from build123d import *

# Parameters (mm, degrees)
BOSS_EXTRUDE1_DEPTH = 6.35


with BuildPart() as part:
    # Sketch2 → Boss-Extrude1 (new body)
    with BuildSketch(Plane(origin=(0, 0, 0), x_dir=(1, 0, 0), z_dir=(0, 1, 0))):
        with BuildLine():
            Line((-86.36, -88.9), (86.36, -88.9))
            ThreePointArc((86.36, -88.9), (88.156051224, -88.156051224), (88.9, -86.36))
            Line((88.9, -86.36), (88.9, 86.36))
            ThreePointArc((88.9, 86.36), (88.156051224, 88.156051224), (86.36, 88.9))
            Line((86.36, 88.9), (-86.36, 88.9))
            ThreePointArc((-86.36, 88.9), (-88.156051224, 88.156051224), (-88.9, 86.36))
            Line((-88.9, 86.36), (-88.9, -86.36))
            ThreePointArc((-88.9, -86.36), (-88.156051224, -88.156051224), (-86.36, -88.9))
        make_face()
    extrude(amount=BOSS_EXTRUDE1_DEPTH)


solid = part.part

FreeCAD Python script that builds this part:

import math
import FreeCAD as App
import Part
import Sketcher
from FreeCAD import Vector
Q = App.Units.Quantity

doc = App.newDocument("Part")
params = doc.addObject("Spreadsheet::Sheet", "Params")
for row, (alias, value) in enumerate([
    ("sketch1_radius", "0.1 in"),
    ("sketch1_width", "6.8 in"),
    ("pad1_length", "0.25 in"),
], start=1):
    params.set(f"A{row}", alias)
    params.set(f"B{row}", "=" + value)
    params.setAlias(f"B{row}", alias)

body = doc.addObject("PartDesign::Body", "Body")

sketch1 = body.newObject("Sketcher::SketchObject", "Sketch")
sketch1.AttachmentSupport = (doc.getObject("XZ_Plane"), [""])
sketch1.MapMode = "FlatFace"
sketch1.addGeometry(Part.LineSegment(Vector(-86.4, 88.9, 0), Vector(86.4, 88.9, 0)), False)
sketch1.addGeometry(Part.ArcOfCircle(Part.Circle(Vector(86.4, 86.4, 0), Vector(0, 0, 1), 2.5), math.radians(0), math.radians(90)), False)
sketch1.addGeometry(Part.LineSegment(Vector(88.9, 86.4, 0), Vector(88.9, -86.4, 0)), False)
sketch1.addGeometry(Part.ArcOfCircle(Part.Circle(Vector(86.4, -86.4, 0), Vector(0, 0, 1), 2.5), math.radians(-90), math.radians(0)), False)
sketch1.addGeometry(Part.LineSegment(Vector(86.4, -88.9, 0), Vector(-86.4, -88.9, 0)), False)
sketch1.addGeometry(Part.ArcOfCircle(Part.Circle(Vector(-86.4, -86.4, 0), Vector(0, 0, 1), 2.5), math.radians(-180), math.radians(-90)), False)
sketch1.addGeometry(Part.LineSegment(Vector(-88.9, -86.4, 0), Vector(-88.9, 86.4, 0)), False)
sketch1.addGeometry(Part.ArcOfCircle(Part.Circle(Vector(-86.4, 86.4, 0), Vector(0, 0, 1), 2.5), math.radians(90), math.radians(180)), False)
sketch1.addConstraint(Sketcher.Constraint("Tangent", 0, 2, 1, 2))
sketch1.addConstraint(Sketcher.Constraint("Tangent", 1, 1, 2, 1))
sketch1.addConstraint(Sketcher.Constraint("Tangent", 2, 2, 3, 2))
sketch1.addConstraint(Sketcher.Constraint("Tangent", 3, 1, 4, 1))
sketch1.addConstraint(Sketcher.Constraint("Tangent", 4, 2, 5, 2))
sketch1.addConstraint(Sketcher.Constraint("Tangent", 5, 1, 6, 1))
sketch1.addConstraint(Sketcher.Constraint("Tangent", 6, 2, 7, 2))
sketch1.addConstraint(Sketcher.Constraint("Tangent", 7, 1, 0, 1))
sketch1.addConstraint(Sketcher.Constraint("Horizontal", 0))
sketch1.addConstraint(Sketcher.Constraint("Vertical", 2))
sketch1.addConstraint(Sketcher.Constraint("Horizontal", 4))
sketch1.addConstraint(Sketcher.Constraint("Vertical", 6))
sketch1.addConstraint(Sketcher.Constraint("Equal", 1, 3))
sketch1.addConstraint(Sketcher.Constraint("Equal", 3, 5))
sketch1.addConstraint(Sketcher.Constraint("Equal", 5, 7))
sketch1.addConstraint(Sketcher.Constraint("Symmetric", 1, 3, 5, 3, -1, 1))
sketch1.addConstraint(Sketcher.Constraint("Equal", 4, 2))
sketch1.addConstraint(Sketcher.Constraint("Radius", 1, Q("0.1 in")))
sketch1.addConstraint(Sketcher.Constraint("DistanceX", 0, 1, 0, 2, Q("6.8 in")))
sketch1.setExpression("Constraints[17]", "Params.sketch1_radius")
sketch1.setExpression("Constraints[18]", "Params.sketch1_width")
pad1 = body.newObject("PartDesign::Pad", "Pad")
pad1.Profile = sketch1
pad1.setExpression("Length", "Params.pad1_length")
pad1.Reversed = True

doc.recompute()
